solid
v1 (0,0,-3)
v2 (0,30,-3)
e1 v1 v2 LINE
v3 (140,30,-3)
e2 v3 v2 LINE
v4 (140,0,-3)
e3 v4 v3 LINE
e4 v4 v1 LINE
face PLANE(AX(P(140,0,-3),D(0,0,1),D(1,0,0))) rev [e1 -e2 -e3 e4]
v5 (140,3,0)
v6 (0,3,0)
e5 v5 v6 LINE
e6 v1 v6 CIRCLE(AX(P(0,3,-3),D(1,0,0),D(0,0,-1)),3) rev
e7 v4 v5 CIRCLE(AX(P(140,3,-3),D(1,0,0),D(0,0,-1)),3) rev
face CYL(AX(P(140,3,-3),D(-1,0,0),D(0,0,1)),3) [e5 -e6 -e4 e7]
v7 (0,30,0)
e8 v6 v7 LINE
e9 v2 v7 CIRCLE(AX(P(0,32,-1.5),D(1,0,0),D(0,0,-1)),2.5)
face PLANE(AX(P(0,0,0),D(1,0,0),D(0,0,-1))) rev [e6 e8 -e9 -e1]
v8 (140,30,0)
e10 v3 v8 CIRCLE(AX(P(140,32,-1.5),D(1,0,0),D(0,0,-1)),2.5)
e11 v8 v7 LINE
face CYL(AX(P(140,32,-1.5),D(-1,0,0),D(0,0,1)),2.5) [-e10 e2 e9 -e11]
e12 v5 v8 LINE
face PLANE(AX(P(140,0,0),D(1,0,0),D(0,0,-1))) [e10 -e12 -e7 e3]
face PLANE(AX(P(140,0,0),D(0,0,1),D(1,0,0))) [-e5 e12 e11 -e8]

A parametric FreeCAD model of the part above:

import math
import FreeCAD as App
import Part
import Sketcher

doc = App.newDocument("Part")
body = doc.addObject("PartDesign::Body", "Body")

# Sketch on YZ plane
sketch1 = doc.addObject("Sketcher::SketchObject", "Sketch")
body.addObject(sketch1)
sketch1.AttachmentSupport = (doc.YZ_Plane, [""])
sketch1.MapMode = "FlatFace"
sketch1.addGeometry(Part.ArcOfCircle(Part.Circle(App.Vector(3, -3, 0), App.Vector(0, 0, 1), 3), math.radians(90), math.radians(180)), False)
sketch1.addGeometry(Part.LineSegment(App.Vector(0, -3, 0), App.Vector(30, -3, 0)), False)
sketch1.addGeometry(Part.ArcOfCircle(Part.Circle(App.Vector(32, -1.5, 0), App.Vector(0, 0, 1), 2.5), math.radians(-143.130102), math.radians(143.130102)), False)
sketch1.addGeometry(Part.LineSegment(App.Vector(30, 0, 0), App.Vector(3, 0, 0)), False)
sketch1.addConstraint(Sketcher.Constraint("Coincident", 0, 2, 1, 1))
sketch1.addConstraint(Sketcher.Constraint("Coincident", 1, 2, 2, 1))
sketch1.addConstraint(Sketcher.Constraint("Coincident", 2, 2, 3, 1))
sketch1.addConstraint(Sketcher.Constraint("Tangent", 3, 2, 0, 1))
sketch1.addConstraint(Sketcher.Constraint("Horizontal", 1))
sketch1.addConstraint(Sketcher.Constraint("Horizontal", 3))
sketch1.addConstraint(Sketcher.Constraint("PointOnObject", 0, 2, -2))
sketch1.addConstraint(Sketcher.Constraint("PointOnObject", 2, 2, -1))
sketch1.addConstraint(Sketcher.Constraint("Vertical", 1, 2, 2, 2))
sketch1.addConstraint(Sketcher.Constraint("Radius", 0, 3.0))
sketch1.addConstraint(Sketcher.Constraint("Radius", 2, 2.5))
sketch1.addConstraint(Sketcher.Constraint("DistanceX", 1, 1, 1, 2, 30.0))
sketch1.addConstraint(Sketcher.Constraint("DistanceX", -1, 1, 2, 3, 32.0))
pad1 = doc.addObject("PartDesign::Pad", "Pad")
body.addObject(pad1)
pad1.Profile = sketch1
pad1.Length = 140

doc.recompute()
